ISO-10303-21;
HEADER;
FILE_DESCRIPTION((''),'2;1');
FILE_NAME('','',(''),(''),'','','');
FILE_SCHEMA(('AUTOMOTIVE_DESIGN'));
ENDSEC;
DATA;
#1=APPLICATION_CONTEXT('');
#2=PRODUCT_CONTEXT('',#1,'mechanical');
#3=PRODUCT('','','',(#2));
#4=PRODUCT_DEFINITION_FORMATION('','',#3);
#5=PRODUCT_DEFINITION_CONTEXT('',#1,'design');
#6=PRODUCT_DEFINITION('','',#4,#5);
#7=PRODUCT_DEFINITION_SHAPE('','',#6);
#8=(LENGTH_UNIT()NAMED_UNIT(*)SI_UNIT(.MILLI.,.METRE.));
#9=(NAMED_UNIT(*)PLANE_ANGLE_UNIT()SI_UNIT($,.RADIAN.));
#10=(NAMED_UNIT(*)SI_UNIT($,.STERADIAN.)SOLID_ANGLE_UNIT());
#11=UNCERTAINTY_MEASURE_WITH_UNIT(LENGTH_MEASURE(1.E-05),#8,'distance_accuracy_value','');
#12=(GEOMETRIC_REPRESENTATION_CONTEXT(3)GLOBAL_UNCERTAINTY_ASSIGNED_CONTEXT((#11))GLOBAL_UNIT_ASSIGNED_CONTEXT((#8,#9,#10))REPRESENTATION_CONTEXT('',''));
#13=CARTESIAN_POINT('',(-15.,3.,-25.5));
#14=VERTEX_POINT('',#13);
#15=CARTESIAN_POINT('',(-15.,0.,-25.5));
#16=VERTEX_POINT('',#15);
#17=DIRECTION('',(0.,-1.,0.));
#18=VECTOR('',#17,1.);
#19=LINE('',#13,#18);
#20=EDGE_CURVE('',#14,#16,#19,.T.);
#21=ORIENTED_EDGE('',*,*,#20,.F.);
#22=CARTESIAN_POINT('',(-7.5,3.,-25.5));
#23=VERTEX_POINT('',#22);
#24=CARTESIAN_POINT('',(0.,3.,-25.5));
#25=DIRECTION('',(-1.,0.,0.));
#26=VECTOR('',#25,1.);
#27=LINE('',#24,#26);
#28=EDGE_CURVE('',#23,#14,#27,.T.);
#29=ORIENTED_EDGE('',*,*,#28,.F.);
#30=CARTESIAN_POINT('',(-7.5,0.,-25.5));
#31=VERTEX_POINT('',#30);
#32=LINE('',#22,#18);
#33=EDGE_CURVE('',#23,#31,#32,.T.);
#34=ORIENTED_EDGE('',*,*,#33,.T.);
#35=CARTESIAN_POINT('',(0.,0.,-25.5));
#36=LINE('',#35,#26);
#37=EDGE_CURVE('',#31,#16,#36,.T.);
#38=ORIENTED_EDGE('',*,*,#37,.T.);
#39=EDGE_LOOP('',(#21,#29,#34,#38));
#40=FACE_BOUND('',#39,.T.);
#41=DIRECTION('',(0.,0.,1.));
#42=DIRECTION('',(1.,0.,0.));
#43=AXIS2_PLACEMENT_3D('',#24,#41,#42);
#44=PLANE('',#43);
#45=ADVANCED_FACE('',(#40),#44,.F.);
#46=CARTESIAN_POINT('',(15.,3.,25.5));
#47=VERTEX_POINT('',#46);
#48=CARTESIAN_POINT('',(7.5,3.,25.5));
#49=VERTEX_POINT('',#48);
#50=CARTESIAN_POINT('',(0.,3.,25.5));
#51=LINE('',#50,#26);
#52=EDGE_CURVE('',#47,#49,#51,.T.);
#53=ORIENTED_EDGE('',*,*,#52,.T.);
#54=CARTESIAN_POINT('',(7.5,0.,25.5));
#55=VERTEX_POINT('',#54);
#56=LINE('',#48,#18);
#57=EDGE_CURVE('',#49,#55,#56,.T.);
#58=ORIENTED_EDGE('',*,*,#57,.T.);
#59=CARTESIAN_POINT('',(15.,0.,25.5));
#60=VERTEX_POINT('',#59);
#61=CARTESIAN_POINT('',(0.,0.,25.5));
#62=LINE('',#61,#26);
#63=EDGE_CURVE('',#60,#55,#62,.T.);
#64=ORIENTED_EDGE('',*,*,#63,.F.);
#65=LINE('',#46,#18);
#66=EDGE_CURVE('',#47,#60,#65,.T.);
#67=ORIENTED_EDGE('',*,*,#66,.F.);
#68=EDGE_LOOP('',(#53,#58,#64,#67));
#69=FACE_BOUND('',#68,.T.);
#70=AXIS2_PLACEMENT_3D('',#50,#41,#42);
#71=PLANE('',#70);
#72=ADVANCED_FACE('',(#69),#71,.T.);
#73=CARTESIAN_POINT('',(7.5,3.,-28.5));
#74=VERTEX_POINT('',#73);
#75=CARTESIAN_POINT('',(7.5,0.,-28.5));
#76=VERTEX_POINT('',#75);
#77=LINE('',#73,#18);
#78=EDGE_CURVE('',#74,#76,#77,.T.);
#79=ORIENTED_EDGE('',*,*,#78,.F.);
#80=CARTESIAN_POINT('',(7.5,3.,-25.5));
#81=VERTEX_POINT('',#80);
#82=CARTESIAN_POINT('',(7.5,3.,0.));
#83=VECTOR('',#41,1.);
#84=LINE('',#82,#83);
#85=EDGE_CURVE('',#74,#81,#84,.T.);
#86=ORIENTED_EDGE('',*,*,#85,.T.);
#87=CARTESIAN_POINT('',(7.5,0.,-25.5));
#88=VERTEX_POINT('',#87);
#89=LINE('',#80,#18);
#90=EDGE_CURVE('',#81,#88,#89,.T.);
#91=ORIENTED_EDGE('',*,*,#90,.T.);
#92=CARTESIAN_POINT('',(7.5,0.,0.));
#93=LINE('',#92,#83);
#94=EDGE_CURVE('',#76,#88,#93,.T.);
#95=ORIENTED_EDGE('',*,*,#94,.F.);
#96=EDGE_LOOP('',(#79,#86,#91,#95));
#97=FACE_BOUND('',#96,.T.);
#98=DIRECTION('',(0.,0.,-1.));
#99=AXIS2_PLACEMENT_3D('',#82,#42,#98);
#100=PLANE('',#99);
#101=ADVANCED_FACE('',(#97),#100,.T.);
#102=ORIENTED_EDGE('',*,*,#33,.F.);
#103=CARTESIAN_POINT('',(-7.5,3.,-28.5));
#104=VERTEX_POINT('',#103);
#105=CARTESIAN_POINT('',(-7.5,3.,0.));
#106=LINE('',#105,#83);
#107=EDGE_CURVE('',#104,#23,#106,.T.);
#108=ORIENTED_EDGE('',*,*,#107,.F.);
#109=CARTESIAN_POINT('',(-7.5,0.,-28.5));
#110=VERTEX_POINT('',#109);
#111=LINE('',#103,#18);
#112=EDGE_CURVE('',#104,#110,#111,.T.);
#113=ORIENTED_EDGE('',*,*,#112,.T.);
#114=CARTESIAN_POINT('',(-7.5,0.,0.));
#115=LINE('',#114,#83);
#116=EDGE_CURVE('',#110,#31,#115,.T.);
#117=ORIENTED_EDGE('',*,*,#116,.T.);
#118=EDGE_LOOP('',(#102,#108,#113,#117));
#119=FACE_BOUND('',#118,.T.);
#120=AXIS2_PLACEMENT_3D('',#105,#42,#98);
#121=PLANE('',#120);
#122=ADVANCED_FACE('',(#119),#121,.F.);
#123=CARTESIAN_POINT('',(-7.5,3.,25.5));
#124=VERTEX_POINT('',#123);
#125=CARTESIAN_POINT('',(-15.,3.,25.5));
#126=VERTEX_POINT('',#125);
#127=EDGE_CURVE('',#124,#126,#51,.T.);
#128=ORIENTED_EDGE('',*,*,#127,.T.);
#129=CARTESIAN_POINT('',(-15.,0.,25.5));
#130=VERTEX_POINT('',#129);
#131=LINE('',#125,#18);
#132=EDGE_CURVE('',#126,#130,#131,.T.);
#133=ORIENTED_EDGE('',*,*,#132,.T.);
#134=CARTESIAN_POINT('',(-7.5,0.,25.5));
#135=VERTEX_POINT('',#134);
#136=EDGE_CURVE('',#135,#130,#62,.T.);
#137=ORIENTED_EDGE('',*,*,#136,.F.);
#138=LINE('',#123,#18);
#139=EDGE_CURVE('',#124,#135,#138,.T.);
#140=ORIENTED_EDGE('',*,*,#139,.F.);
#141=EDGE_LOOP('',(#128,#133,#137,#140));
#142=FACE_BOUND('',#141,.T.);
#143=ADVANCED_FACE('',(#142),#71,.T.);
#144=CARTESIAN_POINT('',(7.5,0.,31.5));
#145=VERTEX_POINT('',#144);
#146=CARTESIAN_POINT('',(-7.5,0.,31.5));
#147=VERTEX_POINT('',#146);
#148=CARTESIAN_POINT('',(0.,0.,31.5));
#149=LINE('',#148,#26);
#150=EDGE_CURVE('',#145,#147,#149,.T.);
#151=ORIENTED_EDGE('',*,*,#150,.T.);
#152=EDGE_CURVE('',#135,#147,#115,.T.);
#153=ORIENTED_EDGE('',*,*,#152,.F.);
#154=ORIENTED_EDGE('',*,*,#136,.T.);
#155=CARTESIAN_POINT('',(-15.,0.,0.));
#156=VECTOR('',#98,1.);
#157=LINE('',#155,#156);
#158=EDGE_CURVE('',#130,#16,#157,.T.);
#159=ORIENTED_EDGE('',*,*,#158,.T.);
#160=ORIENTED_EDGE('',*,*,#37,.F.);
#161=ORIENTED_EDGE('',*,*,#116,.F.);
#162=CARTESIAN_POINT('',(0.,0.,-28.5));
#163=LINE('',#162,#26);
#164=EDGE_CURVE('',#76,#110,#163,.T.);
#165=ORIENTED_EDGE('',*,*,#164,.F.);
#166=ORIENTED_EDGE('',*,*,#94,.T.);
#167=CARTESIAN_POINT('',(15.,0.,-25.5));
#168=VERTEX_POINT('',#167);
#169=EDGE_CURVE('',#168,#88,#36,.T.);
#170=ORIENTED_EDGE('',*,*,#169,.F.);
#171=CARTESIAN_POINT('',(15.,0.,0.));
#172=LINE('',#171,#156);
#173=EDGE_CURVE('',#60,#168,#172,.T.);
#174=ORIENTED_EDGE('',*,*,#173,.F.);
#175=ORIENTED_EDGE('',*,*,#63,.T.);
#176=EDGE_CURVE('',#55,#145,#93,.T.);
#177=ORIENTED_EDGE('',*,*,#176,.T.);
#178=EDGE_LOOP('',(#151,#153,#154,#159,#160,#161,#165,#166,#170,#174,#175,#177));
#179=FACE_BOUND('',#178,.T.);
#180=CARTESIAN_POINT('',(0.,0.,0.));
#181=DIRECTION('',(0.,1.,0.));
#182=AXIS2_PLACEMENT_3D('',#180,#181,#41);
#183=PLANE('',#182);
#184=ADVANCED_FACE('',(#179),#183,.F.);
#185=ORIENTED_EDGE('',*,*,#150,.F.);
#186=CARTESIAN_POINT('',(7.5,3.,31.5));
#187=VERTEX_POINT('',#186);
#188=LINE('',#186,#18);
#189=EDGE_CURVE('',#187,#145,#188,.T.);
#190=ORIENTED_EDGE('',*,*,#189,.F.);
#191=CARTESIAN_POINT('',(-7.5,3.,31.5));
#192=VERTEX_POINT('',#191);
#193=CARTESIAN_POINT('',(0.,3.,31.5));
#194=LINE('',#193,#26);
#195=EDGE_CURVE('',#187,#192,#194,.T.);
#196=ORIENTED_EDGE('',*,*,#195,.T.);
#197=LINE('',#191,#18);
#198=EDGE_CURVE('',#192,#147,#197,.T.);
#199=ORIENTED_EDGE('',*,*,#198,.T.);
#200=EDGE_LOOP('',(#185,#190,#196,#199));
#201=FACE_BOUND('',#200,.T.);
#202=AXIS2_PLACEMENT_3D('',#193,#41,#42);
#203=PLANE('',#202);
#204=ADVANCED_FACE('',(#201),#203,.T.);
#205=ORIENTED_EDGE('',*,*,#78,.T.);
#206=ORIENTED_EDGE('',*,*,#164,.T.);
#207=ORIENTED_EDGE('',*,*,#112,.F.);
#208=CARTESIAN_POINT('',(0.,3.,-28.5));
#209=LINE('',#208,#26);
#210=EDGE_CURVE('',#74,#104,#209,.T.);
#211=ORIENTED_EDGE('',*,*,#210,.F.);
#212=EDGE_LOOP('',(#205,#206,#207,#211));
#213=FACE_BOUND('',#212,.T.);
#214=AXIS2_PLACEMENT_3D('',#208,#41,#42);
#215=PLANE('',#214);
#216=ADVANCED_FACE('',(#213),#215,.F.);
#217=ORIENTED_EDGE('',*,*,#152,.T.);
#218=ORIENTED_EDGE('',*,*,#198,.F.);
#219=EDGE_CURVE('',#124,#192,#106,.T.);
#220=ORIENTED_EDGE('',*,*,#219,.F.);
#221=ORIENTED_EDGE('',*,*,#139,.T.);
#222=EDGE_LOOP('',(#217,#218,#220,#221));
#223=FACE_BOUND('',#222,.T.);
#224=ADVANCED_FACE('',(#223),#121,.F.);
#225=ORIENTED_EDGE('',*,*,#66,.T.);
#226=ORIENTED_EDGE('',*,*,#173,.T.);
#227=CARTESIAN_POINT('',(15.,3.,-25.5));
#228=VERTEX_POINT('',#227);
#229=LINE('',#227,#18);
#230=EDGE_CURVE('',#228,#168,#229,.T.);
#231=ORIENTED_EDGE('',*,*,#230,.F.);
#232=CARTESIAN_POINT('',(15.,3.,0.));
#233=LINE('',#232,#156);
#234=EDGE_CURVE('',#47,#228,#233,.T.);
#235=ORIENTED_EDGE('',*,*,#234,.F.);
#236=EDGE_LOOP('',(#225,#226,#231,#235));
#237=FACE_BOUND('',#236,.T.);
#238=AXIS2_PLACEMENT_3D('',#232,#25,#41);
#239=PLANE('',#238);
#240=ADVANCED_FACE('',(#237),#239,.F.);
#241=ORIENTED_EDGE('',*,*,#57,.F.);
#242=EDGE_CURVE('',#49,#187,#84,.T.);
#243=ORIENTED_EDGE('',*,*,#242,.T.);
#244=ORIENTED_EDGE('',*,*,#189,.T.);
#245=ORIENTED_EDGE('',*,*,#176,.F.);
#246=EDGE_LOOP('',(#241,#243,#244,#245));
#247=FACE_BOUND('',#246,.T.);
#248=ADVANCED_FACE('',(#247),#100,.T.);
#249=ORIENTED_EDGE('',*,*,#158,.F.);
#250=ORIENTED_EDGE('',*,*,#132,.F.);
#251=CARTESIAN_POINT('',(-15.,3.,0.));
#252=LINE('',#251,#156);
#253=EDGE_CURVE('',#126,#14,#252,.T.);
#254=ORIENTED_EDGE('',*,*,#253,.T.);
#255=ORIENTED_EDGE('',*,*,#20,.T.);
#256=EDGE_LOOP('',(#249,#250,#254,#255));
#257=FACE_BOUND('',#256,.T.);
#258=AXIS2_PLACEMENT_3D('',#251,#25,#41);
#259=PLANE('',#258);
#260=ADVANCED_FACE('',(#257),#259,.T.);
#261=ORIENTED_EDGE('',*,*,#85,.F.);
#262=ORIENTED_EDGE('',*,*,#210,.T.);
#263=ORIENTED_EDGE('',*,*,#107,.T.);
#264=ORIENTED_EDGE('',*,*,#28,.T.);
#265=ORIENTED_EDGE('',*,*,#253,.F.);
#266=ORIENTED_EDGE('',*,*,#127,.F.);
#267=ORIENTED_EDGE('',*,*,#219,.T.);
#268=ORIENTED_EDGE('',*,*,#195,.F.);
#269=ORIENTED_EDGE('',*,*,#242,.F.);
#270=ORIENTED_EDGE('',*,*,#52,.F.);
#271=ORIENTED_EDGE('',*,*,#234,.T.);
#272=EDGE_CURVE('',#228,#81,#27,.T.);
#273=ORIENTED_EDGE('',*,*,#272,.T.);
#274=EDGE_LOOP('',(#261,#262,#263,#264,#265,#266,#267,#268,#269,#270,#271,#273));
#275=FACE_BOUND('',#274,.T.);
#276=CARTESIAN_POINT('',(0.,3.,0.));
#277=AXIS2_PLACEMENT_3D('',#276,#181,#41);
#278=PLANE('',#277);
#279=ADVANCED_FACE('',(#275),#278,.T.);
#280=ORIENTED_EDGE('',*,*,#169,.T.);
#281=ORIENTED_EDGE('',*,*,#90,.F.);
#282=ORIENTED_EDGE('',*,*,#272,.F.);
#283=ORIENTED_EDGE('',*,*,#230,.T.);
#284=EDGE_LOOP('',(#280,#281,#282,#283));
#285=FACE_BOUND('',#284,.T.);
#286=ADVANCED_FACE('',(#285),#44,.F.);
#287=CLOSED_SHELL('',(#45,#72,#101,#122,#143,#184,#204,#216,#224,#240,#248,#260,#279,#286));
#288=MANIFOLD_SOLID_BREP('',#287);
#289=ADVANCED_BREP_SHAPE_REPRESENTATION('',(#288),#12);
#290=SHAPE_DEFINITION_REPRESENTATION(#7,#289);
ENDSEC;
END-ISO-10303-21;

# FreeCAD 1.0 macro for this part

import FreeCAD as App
import Part
import Sketcher


def add_polygon(sketch, points):
    """Adds a closed chain of lines whose ends are joined by coincident constraints."""
    first, n = sketch.GeometryCount, len(points)
    for a, b in zip(points, points[1:] + points[:1]):
        sketch.addGeometry(Part.LineSegment(App.Vector(*a, 0), App.Vector(*b, 0)), False)
    for i in range(n):
        sketch.addConstraint(Sketcher.Constraint("Coincident", first + i, 2, first + (i + 1) % n, 1))

doc = App.newDocument("Part")
body = doc.addObject("PartDesign::Body", "Body")

# Sketch on XZ plane
sketch1 = body.newObject("Sketcher::SketchObject", "Sketch")
sketch1.AttachmentSupport = (doc.getObject("XZ_Plane"), [""])
sketch1.MapMode = "FlatFace"
add_polygon(sketch1, [(-7.5, -25.5), (-15, -25.5), (-15, 25.5), (-7.5, 25.5), (-7.5, 31.5), (7.5, 31.5), (7.5, 25.5), (15, 25.5), (15, -25.5), (7.5, -25.5), (7.5, -28.5), (-7.5, -28.5)])  # lines 0-11
sketch1.addConstraint(Sketcher.Constraint("Horizontal", 0))
sketch1.addConstraint(Sketcher.Constraint("Vertical", 1))
sketch1.addConstraint(Sketcher.Constraint("Horizontal", 2))
sketch1.addConstraint(Sketcher.Constraint("Vertical", 3))
sketch1.addConstraint(Sketcher.Constraint("Horizontal", 4))
sketch1.addConstraint(Sketcher.Constraint("Vertical", 5))
sketch1.addConstraint(Sketcher.Constraint("Horizontal", 6))
sketch1.addConstraint(Sketcher.Constraint("Vertical", 7))
sketch1.addConstraint(Sketcher.Constraint("Horizontal", 8))
sketch1.addConstraint(Sketcher.Constraint("Vertical", 9))
sketch1.addConstraint(Sketcher.Constraint("Horizontal", 10))
sketch1.addConstraint(Sketcher.Constraint("Vertical", 11))
sketch1.addConstraint(Sketcher.Constraint("Symmetric", 0, 2, 6, 2, -1, 1))
sketch1.addConstraint(Sketcher.Constraint("Symmetric", 2, 2, 8, 2, -1, 1))
sketch1.addConstraint(Sketcher.Constraint("Symmetric", 2, 2, 5, 2, -2))
sketch1.addConstraint(Sketcher.Constraint("Vertical", 3, 2, 10, 2))
sketch1.addConstraint(Sketcher.Constraint("DistanceX", 4, 1, 4, 2, 15.0))
sketch1.addConstraint(Sketcher.Constraint("DistanceY", 1, 1, 1, 2, 51.0))
sketch1.addConstraint(Sketcher.Constraint("DistanceY", 3, 1, 3, 2, 6.0))
sketch1.addConstraint(Sketcher.Constraint("DistanceY", 9, 2, 9, 1, 3.0))
sketch1.addConstraint(Sketcher.Constraint("DistanceX", 0, 2, 0, 1, 7.5))
pad1 = body.newObject("PartDesign::Pad", "Pad")
pad1.Profile = sketch1
pad1.Length = 3
pad1.Reversed = True

doc.recompute()
